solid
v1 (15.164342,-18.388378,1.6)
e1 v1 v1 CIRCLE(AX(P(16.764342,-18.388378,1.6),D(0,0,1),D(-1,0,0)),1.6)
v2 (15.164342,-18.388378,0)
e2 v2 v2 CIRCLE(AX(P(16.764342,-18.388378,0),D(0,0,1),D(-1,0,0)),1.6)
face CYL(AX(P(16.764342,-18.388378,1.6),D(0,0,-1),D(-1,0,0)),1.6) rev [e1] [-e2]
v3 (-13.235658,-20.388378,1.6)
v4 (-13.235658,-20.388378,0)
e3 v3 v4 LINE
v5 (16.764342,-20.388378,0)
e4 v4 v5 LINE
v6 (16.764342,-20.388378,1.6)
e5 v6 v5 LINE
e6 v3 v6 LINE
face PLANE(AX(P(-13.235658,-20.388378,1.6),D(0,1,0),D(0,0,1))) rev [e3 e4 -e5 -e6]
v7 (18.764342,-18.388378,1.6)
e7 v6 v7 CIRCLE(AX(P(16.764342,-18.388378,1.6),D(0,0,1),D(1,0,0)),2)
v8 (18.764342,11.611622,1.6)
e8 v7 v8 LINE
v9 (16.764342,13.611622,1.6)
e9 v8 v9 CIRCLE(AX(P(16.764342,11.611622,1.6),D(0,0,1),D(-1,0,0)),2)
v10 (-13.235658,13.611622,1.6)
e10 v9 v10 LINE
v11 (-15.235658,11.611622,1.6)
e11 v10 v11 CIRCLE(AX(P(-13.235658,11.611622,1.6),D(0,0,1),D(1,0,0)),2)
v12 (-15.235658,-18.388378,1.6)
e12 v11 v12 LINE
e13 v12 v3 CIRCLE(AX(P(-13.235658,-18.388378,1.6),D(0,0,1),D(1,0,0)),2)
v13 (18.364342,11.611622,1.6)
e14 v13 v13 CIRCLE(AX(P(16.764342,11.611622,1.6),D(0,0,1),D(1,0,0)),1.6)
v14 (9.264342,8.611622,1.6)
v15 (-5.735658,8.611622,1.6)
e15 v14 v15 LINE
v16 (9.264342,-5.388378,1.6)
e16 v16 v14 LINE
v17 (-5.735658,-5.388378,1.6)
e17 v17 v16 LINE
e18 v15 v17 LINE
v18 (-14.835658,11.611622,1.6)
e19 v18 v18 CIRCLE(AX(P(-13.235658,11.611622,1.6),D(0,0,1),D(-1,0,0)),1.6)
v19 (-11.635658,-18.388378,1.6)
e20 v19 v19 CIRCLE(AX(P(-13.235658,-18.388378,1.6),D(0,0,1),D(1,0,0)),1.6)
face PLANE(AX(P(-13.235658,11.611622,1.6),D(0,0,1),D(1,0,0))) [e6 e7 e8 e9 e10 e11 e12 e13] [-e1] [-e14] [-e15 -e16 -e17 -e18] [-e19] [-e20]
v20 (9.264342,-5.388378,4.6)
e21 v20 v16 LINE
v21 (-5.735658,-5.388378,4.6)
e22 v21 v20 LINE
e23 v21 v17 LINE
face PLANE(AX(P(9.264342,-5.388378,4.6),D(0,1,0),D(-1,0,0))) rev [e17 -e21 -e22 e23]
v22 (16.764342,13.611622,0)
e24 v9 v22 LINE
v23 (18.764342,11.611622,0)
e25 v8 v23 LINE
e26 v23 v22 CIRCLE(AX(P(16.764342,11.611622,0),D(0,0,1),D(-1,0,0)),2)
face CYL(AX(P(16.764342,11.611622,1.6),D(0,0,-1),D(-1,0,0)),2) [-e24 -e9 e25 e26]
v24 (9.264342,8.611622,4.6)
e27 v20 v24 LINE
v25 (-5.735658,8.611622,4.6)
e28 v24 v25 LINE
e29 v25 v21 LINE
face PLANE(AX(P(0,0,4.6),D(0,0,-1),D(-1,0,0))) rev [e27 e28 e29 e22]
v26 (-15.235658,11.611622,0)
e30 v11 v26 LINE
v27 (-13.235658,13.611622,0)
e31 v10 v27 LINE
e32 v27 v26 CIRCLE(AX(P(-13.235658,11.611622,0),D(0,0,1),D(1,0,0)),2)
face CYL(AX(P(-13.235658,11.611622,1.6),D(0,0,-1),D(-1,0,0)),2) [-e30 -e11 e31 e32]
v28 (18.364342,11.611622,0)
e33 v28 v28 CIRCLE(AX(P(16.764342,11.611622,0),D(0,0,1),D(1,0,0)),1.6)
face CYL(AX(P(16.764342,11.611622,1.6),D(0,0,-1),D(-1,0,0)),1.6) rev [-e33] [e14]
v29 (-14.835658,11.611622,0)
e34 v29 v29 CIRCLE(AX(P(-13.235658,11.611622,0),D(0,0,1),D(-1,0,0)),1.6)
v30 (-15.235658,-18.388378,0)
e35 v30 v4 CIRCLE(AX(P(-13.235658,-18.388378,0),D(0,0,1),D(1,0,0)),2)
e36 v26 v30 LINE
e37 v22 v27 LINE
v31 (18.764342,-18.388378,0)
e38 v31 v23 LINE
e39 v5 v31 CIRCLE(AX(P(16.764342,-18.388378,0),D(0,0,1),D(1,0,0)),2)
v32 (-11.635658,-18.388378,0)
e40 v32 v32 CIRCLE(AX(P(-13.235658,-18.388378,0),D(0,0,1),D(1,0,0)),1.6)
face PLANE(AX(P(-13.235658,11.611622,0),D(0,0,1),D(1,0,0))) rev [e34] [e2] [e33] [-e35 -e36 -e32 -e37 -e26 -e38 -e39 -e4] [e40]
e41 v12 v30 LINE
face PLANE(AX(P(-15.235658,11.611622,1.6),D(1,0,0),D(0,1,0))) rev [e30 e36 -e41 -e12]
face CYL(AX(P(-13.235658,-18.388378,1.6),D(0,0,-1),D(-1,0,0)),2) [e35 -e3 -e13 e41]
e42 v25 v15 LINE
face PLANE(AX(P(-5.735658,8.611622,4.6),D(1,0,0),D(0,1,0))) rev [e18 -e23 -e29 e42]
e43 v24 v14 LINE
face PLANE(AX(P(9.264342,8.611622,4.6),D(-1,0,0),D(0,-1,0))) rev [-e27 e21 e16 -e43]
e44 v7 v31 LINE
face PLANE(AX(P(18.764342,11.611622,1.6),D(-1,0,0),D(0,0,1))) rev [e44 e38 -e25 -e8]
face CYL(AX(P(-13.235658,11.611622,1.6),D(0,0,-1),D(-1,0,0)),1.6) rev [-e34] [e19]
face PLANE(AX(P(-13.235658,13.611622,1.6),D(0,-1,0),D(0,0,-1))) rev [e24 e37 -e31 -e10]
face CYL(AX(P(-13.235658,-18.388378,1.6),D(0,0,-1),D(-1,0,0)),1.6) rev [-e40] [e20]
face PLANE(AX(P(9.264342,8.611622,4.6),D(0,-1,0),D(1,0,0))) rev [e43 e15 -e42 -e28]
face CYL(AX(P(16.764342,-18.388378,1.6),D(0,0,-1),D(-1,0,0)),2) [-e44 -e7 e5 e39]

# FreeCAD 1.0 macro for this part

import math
import FreeCAD as App
import Part
import Sketcher
from FreeCAD import Vector
Q = App.Units.Quantity


def add_polygon(sketch, points):
    """Adds a closed chain of lines whose ends are joined by coincident constraints."""
    first, n = sketch.GeometryCount, len(points)
    for a, b in zip(points, points[1:] + points[:1]):
        sketch.addGeometry(Part.LineSegment(App.Vector(*a, 0), App.Vector(*b, 0)), False)
    for i in range(n):
        sketch.addConstraint(Sketcher.Constraint("Coincident", first + i, 2, first + (i + 1) % n, 1))

doc = App.newDocument("Part")
body = doc.addObject("PartDesign::Body", "Body")

# Sketch on XY plane
sketch1 = body.newObject("Sketcher::SketchObject", "Sketch")
sketch1.AttachmentSupport = (doc.getObject("XY_Plane"), [""])
sketch1.MapMode = "FlatFace"
sketch1.addGeometry([
    Part.LineSegment(Vector(16.8, 13.6, 0), Vector(-13.2, 13.6, 0)),  # 0
    Part.ArcOfCircle(Part.Circle(Vector(-13.2, 11.6, 0), Vector(0, 0, 1), 2), math.radians(90), math.radians(180)),  # 1
    Part.LineSegment(Vector(-15.2, 11.6, 0), Vector(-15.2, -18.4, 0)),  # 2
    Part.ArcOfCircle(Part.Circle(Vector(-13.2, -18.4, 0), Vector(0, 0, 1), 2), math.radians(180), math.radians(270)),  # 3
    Part.LineSegment(Vector(-13.2, -20.4, 0), Vector(16.8, -20.4, 0)),  # 4
    Part.ArcOfCircle(Part.Circle(Vector(16.8, -18.4, 0), Vector(0, 0, 1), 2), math.radians(-90), math.radians(0)),  # 5
    Part.LineSegment(Vector(18.8, -18.4, 0), Vector(18.8, 11.6, 0)),  # 6
    Part.ArcOfCircle(Part.Circle(Vector(16.8, 11.6, 0), Vector(0, 0, 1), 2), math.radians(0), math.radians(90)),  # 7
    Part.Circle(Vector(16.8, -18.4, 0), Vector(0, 0, 1), 1.6),  # 8
    Part.Circle(Vector(-13.2, -18.4, 0), Vector(0, 0, 1), 1.6),  # 9
    Part.Circle(Vector(16.8, 11.6, 0), Vector(0, 0, 1), 1.6),  # 10
    Part.Circle(Vector(-13.2, 11.6, 0), Vector(0, 0, 1), 1.6),  # 11
], False)
sketch1.addConstraint([
    Sketcher.Constraint("Tangent", 0, 2, 1, 1),
    Sketcher.Constraint("Tangent", 1, 2, 2, 1),
    Sketcher.Constraint("Tangent", 2, 2, 3, 1),
    Sketcher.Constraint("Tangent", 3, 2, 4, 1),
    Sketcher.Constraint("Tangent", 4, 2, 5, 1),
    Sketcher.Constraint("Tangent", 5, 2, 6, 1),
    Sketcher.Constraint("Tangent", 6, 2, 7, 1),
    Sketcher.Constraint("Tangent", 7, 2, 0, 1),
    Sketcher.Constraint("Horizontal", 0),
    Sketcher.Constraint("Vertical", 2),
    Sketcher.Constraint("Horizontal", 4),
    Sketcher.Constraint("Vertical", 6),
    Sketcher.Constraint("Coincident", 8, 3, 5, 3),
    Sketcher.Constraint("Coincident", 9, 3, 3, 3),
    Sketcher.Constraint("Coincident", 10, 3, 7, 3),
    Sketcher.Constraint("Coincident", 11, 3, 1, 3),
    Sketcher.Constraint("Equal", 1, 3),
    Sketcher.Constraint("Equal", 3, 5),
    Sketcher.Constraint("Equal", 5, 7),
    Sketcher.Constraint("Equal", 8, 9),
    Sketcher.Constraint("Equal", 9, 10),
    Sketcher.Constraint("Equal", 10, 11),
    Sketcher.Constraint("Equal", 4, 2),
    Sketcher.Constraint("Radius", 1, Q("2 mm")),
    Sketcher.Constraint("Diameter", 8, Q("3.2 mm")),
    Sketcher.Constraint("DistanceX", 0, 2, 0, 1, Q("30 mm")),
    Sketcher.Constraint("DistanceX", 1, 3, -1, 1, Q("13.235658 mm")),
    Sketcher.Constraint("DistanceY", -1, 1, 1, 3, Q("11.611622 mm")),
])
pad1 = body.newObject("PartDesign::Pad", "Pad")
pad1.Profile = sketch1
pad1.Length = 1.6

# Sketch on XY plane
sketch2 = body.newObject("Sketcher::SketchObject", "Sketch001")
sketch2.AttachmentSupport = (doc.getObject("XY_Plane"), [""])
sketch2.MapMode = "FlatFace"
sketch2.AttachmentOffset = App.Placement(Vector(0, 0, 1.6), App.Rotation())
add_polygon(sketch2, [(-6, 9), (-6, -5), (9, -5), (9, 9)])  # lines 0-3
sketch2.addConstraint([
    Sketcher.Constraint("Vertical", 0),
    Sketcher.Constraint("Horizontal", 1),
    Sketcher.Constraint("Vertical", 2),
    Sketcher.Constraint("Horizontal", 3),
    Sketcher.Constraint("DistanceX", 1, 1, 1, 2, Q("15 mm")),
    Sketcher.Constraint("DistanceY", 0, 2, 0, 1, Q("14 mm")),
    Sketcher.Constraint("DistanceX", 0, 2, -1, 1, Q("5.735658 mm")),
    Sketcher.Constraint("DistanceY", 0, 2, -1, 1, Q("5.388378 mm")),
])
pad2 = body.newObject("PartDesign::Pad", "Pad001")
pad2.Profile = sketch2
pad2.Length = 3

doc.recompute()
